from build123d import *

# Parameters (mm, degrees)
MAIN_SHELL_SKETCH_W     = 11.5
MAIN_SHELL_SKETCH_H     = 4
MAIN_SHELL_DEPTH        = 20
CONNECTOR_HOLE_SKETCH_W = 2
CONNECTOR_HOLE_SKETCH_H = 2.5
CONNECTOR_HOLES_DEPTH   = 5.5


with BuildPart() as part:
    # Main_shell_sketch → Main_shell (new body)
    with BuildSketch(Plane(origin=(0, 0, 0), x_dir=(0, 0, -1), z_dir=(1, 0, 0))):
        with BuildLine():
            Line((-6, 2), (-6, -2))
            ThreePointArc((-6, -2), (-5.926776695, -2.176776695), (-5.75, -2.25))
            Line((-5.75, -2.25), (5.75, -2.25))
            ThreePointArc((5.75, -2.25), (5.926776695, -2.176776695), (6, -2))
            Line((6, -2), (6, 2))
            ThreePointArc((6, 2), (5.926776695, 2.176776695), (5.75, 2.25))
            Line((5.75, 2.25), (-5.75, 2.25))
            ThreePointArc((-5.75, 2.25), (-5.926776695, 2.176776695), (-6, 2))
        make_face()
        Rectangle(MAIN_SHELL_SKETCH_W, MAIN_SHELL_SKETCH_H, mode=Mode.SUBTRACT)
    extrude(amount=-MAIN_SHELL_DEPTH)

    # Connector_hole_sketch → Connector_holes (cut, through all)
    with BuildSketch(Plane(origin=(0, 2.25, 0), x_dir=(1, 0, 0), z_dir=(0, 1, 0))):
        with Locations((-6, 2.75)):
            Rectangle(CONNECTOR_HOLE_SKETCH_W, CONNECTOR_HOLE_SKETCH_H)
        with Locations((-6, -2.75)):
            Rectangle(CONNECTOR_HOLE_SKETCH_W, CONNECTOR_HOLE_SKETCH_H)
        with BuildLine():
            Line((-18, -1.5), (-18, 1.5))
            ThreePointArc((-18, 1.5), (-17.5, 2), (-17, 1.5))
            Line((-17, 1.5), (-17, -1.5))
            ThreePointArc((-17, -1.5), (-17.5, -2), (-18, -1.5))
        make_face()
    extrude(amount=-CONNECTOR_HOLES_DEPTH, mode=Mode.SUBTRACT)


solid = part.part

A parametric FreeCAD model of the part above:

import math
import FreeCAD as App
import Part
import Sketcher

V = App.Vector


def add_polygon(sketch, points):
    """Adds a closed chain of lines whose ends are joined by coincident constraints."""
    first, n = sketch.GeometryCount, len(points)
    for a, b in zip(points, points[1:] + points[:1]):
        sketch.addGeometry(Part.LineSegment(App.Vector(*a, 0), App.Vector(*b, 0)), False)
    for i in range(n):
        sketch.addConstraint(Sketcher.Constraint("Coincident", first + i, 2, first + (i + 1) % n, 1))

doc = App.newDocument("Part")
params = doc.addObject("Spreadsheet::Sheet", "Params")
for row, (alias, value) in enumerate([
    ("sketch1_width", "4 mm"),
    ("sketch1_radius", "0.25 mm"),
    ("sketch1_height", "11.5 mm"),
    ("pad1_length", "20 mm"),
    ("sketch2_radius", "0.5 mm"),
    ("sketch2_width", "2 mm"),
    ("sketch2_height", "3 mm"),
    ("sketch2_height2", "2.5 mm"),
], start=1):
    params.set(f"A{row}", alias)
    params.set(f"B{row}", "=" + value)
    params.setAlias(f"B{row}", alias)

body = doc.addObject("PartDesign::Body", "Body")

# Sketch on YZ plane
sketch1 = doc.addObject("Sketcher::SketchObject", "Sketch")
body.addObject(sketch1)
sketch1.AttachmentSupport = (doc.YZ_Plane, [""])
sketch1.MapMode = "FlatFace"
sketch1.addGeometry(Part.LineSegment(V(2, 6, 0), V(-2, 6, 0)), False)  # 0
sketch1.addGeometry(Part.ArcOfCircle(Part.Circle(V(-2, 5.75, 0), V(0, 0, 1), 0.25), math.radians(90), math.radians(180)), False)  # 1
sketch1.addGeometry(Part.LineSegment(V(-2.25, 5.75, 0), V(-2.25, -5.75, 0)), False)  # 2
sketch1.addGeometry(Part.ArcOfCircle(Part.Circle(V(-2, -5.75, 0), V(0, 0, 1), 0.25), math.radians(-180), math.radians(-90)), False)  # 3
sketch1.addGeometry(Part.LineSegment(V(-2, -6, 0), V(2, -6, 0)), False)  # 4
sketch1.addGeometry(Part.ArcOfCircle(Part.Circle(V(2, -5.75, 0), V(0, 0, 1), 0.25), math.radians(-90), math.radians(0)), False)  # 5
sketch1.addGeometry(Part.LineSegment(V(2.25, -5.75, 0), V(2.25, 5.75, 0)), False)  # 6
sketch1.addGeometry(Part.ArcOfCircle(Part.Circle(V(2, 5.75, 0), V(0, 0, 1), 0.25), math.radians(0), math.radians(90)), False)  # 7
add_polygon(sketch1, [(-2, -5.75), (-2, 5.75), (2, 5.75), (2, -5.75)])  # lines 8-11
sketch1.addConstraint([
    Sketcher.Constraint("Tangent", 0, 2, 1, 1),
    Sketcher.Constraint("Tangent", 1, 2, 2, 1),
    Sketcher.Constraint("Tangent", 2, 2, 3, 1),
    Sketcher.Constraint("Tangent", 3, 2, 4, 1),
    Sketcher.Constraint("Tangent", 4, 2, 5, 1),
    Sketcher.Constraint("Tangent", 5, 2, 6, 1),
    Sketcher.Constraint("Tangent", 6, 2, 7, 1),
    Sketcher.Constraint("Tangent", 7, 2, 0, 1),
    Sketcher.Constraint("Horizontal", 0),
    Sketcher.Constraint("Vertical", 2),
    Sketcher.Constraint("Horizontal", 4),
    Sketcher.Constraint("Vertical", 6),
    Sketcher.Constraint("Vertical", 8),
    Sketcher.Constraint("Horizontal", 9),
    Sketcher.Constraint("Vertical", 10),
    Sketcher.Constraint("Horizontal", 11),
    Sketcher.Constraint("Coincident", 8, 2, 1, 3),
    Sketcher.Constraint("Coincident", 9, 2, 7, 3),
    Sketcher.Constraint("Coincident", 10, 2, 5, 3),
    Sketcher.Constraint("Equal", 1, 3),
    Sketcher.Constraint("Symmetric", 1, 3, 5, 3, -1, 1),
    Sketcher.Constraint("DistanceX", 0, 2, 0, 1, 4.0),
    Sketcher.Constraint("Radius", 1, 0.25),
    Sketcher.Constraint("DistanceY", 2, 2, 2, 1, 11.5),
])
sketch1.setExpression("Constraints[25]", "Params.sketch1_width")
sketch1.setExpression("Constraints[26]", "Params.sketch1_radius")
sketch1.setExpression("Constraints[27]", "Params.sketch1_height")
pad1 = doc.addObject("PartDesign::Pad", "Pad")
body.addObject(pad1)
pad1.Profile = sketch1
pad1.setExpression("Length", "Params.pad1_length")
pad1.Reversed = True

# Sketch on XZ plane
sketch2 = doc.addObject("Sketcher::SketchObject", "Sketch001")
body.addObject(sketch2)
sketch2.AttachmentSupport = (doc.XZ_Plane, [""])
sketch2.MapMode = "FlatFace"
sketch2.AttachmentOffset = App.Placement(V(0, 0, -2.25), App.Rotation())
add_polygon(sketch2, [(-7, -4), (-7, -1.5), (-5, -1.5), (-5, -4)])  # lines 0-3
add_polygon(sketch2, [(-7, 1.5), (-7, 4), (-5, 4), (-5, 1.5)])  # lines 4-7
sketch2.addGeometry(Part.LineSegment(V(-18, -1.5, 0), V(-18, 1.5, 0)), False)  # 8
sketch2.addGeometry(Part.ArcOfCircle(Part.Circle(V(-17.5, 1.5, 0), V(0, 0, 1), 0.5), math.radians(0), math.radians(180)), False)  # 9
sketch2.addGeometry(Part.LineSegment(V(-17, 1.5, 0), V(-17, -1.5, 0)), False)  # 10
sketch2.addGeometry(Part.ArcOfCircle(Part.Circle(V(-17.5, -1.5, 0), V(0, 0, 1), 0.5), math.radians(180), math.radians(360)), False)  # 11
sketch2.addConstraint([
    Sketcher.Constraint("Tangent", 8, 2, 9, 2),
    Sketcher.Constraint("Tangent", 9, 1, 10, 1),
    Sketcher.Constraint("Tangent", 10, 2, 11, 2),
    Sketcher.Constraint("Tangent", 11, 1, 8, 1),
    Sketcher.Constraint("Vertical", 0),
    Sketcher.Constraint("Horizontal", 1),
    Sketcher.Constraint("Vertical", 2),
    Sketcher.Constraint("Horizontal", 3),
    Sketcher.Constraint("Vertical", 4),
    Sketcher.Constraint("Horizontal", 5),
    Sketcher.Constraint("Vertical", 6),
    Sketcher.Constraint("Horizontal", 7),
    Sketcher.Constraint("Vertical", 8),
    Sketcher.Constraint("Vertical", 10),
    Sketcher.Constraint("Symmetric", 3, 2, 4, 2, -1),
    Sketcher.Constraint("Symmetric", 1, 2, 6, 2, -1),
    Sketcher.Constraint("Horizontal", 11, 3, 0, 2),
    Sketcher.Constraint("Horizontal", 9, 3, 6, 2),
    Sketcher.Constraint("Radius", 9, 0.5),
    Sketcher.Constraint("DistanceX", 1, 1, 1, 2, 2.0),
    Sketcher.Constraint("DistanceY", 8, 1, 8, 2, 3.0),
    Sketcher.Constraint("DistanceY", 0, 1, 0, 2, 2.5),
    Sketcher.Constraint("DistanceX", 0, 2, -1, 1, 7.0),
    Sketcher.Constraint("DistanceX", 8, 2, -1, 1, 18.0),
])
sketch2.setExpression("Constraints[26]", "Params.sketch2_radius")
sketch2.setExpression("Constraints[27]", "Params.sketch2_width")
sketch2.setExpression("Constraints[28]", "Params.sketch2_height")
sketch2.setExpression("Constraints[29]", "Params.sketch2_height2")
pocket1 = doc.addObject("PartDesign::Pocket", "Pocket")
body.addObject(pocket1)
pocket1.Profile = sketch2
pocket1.Type = "ThroughAll"
pocket1.Reversed = True

doc.recompute()
